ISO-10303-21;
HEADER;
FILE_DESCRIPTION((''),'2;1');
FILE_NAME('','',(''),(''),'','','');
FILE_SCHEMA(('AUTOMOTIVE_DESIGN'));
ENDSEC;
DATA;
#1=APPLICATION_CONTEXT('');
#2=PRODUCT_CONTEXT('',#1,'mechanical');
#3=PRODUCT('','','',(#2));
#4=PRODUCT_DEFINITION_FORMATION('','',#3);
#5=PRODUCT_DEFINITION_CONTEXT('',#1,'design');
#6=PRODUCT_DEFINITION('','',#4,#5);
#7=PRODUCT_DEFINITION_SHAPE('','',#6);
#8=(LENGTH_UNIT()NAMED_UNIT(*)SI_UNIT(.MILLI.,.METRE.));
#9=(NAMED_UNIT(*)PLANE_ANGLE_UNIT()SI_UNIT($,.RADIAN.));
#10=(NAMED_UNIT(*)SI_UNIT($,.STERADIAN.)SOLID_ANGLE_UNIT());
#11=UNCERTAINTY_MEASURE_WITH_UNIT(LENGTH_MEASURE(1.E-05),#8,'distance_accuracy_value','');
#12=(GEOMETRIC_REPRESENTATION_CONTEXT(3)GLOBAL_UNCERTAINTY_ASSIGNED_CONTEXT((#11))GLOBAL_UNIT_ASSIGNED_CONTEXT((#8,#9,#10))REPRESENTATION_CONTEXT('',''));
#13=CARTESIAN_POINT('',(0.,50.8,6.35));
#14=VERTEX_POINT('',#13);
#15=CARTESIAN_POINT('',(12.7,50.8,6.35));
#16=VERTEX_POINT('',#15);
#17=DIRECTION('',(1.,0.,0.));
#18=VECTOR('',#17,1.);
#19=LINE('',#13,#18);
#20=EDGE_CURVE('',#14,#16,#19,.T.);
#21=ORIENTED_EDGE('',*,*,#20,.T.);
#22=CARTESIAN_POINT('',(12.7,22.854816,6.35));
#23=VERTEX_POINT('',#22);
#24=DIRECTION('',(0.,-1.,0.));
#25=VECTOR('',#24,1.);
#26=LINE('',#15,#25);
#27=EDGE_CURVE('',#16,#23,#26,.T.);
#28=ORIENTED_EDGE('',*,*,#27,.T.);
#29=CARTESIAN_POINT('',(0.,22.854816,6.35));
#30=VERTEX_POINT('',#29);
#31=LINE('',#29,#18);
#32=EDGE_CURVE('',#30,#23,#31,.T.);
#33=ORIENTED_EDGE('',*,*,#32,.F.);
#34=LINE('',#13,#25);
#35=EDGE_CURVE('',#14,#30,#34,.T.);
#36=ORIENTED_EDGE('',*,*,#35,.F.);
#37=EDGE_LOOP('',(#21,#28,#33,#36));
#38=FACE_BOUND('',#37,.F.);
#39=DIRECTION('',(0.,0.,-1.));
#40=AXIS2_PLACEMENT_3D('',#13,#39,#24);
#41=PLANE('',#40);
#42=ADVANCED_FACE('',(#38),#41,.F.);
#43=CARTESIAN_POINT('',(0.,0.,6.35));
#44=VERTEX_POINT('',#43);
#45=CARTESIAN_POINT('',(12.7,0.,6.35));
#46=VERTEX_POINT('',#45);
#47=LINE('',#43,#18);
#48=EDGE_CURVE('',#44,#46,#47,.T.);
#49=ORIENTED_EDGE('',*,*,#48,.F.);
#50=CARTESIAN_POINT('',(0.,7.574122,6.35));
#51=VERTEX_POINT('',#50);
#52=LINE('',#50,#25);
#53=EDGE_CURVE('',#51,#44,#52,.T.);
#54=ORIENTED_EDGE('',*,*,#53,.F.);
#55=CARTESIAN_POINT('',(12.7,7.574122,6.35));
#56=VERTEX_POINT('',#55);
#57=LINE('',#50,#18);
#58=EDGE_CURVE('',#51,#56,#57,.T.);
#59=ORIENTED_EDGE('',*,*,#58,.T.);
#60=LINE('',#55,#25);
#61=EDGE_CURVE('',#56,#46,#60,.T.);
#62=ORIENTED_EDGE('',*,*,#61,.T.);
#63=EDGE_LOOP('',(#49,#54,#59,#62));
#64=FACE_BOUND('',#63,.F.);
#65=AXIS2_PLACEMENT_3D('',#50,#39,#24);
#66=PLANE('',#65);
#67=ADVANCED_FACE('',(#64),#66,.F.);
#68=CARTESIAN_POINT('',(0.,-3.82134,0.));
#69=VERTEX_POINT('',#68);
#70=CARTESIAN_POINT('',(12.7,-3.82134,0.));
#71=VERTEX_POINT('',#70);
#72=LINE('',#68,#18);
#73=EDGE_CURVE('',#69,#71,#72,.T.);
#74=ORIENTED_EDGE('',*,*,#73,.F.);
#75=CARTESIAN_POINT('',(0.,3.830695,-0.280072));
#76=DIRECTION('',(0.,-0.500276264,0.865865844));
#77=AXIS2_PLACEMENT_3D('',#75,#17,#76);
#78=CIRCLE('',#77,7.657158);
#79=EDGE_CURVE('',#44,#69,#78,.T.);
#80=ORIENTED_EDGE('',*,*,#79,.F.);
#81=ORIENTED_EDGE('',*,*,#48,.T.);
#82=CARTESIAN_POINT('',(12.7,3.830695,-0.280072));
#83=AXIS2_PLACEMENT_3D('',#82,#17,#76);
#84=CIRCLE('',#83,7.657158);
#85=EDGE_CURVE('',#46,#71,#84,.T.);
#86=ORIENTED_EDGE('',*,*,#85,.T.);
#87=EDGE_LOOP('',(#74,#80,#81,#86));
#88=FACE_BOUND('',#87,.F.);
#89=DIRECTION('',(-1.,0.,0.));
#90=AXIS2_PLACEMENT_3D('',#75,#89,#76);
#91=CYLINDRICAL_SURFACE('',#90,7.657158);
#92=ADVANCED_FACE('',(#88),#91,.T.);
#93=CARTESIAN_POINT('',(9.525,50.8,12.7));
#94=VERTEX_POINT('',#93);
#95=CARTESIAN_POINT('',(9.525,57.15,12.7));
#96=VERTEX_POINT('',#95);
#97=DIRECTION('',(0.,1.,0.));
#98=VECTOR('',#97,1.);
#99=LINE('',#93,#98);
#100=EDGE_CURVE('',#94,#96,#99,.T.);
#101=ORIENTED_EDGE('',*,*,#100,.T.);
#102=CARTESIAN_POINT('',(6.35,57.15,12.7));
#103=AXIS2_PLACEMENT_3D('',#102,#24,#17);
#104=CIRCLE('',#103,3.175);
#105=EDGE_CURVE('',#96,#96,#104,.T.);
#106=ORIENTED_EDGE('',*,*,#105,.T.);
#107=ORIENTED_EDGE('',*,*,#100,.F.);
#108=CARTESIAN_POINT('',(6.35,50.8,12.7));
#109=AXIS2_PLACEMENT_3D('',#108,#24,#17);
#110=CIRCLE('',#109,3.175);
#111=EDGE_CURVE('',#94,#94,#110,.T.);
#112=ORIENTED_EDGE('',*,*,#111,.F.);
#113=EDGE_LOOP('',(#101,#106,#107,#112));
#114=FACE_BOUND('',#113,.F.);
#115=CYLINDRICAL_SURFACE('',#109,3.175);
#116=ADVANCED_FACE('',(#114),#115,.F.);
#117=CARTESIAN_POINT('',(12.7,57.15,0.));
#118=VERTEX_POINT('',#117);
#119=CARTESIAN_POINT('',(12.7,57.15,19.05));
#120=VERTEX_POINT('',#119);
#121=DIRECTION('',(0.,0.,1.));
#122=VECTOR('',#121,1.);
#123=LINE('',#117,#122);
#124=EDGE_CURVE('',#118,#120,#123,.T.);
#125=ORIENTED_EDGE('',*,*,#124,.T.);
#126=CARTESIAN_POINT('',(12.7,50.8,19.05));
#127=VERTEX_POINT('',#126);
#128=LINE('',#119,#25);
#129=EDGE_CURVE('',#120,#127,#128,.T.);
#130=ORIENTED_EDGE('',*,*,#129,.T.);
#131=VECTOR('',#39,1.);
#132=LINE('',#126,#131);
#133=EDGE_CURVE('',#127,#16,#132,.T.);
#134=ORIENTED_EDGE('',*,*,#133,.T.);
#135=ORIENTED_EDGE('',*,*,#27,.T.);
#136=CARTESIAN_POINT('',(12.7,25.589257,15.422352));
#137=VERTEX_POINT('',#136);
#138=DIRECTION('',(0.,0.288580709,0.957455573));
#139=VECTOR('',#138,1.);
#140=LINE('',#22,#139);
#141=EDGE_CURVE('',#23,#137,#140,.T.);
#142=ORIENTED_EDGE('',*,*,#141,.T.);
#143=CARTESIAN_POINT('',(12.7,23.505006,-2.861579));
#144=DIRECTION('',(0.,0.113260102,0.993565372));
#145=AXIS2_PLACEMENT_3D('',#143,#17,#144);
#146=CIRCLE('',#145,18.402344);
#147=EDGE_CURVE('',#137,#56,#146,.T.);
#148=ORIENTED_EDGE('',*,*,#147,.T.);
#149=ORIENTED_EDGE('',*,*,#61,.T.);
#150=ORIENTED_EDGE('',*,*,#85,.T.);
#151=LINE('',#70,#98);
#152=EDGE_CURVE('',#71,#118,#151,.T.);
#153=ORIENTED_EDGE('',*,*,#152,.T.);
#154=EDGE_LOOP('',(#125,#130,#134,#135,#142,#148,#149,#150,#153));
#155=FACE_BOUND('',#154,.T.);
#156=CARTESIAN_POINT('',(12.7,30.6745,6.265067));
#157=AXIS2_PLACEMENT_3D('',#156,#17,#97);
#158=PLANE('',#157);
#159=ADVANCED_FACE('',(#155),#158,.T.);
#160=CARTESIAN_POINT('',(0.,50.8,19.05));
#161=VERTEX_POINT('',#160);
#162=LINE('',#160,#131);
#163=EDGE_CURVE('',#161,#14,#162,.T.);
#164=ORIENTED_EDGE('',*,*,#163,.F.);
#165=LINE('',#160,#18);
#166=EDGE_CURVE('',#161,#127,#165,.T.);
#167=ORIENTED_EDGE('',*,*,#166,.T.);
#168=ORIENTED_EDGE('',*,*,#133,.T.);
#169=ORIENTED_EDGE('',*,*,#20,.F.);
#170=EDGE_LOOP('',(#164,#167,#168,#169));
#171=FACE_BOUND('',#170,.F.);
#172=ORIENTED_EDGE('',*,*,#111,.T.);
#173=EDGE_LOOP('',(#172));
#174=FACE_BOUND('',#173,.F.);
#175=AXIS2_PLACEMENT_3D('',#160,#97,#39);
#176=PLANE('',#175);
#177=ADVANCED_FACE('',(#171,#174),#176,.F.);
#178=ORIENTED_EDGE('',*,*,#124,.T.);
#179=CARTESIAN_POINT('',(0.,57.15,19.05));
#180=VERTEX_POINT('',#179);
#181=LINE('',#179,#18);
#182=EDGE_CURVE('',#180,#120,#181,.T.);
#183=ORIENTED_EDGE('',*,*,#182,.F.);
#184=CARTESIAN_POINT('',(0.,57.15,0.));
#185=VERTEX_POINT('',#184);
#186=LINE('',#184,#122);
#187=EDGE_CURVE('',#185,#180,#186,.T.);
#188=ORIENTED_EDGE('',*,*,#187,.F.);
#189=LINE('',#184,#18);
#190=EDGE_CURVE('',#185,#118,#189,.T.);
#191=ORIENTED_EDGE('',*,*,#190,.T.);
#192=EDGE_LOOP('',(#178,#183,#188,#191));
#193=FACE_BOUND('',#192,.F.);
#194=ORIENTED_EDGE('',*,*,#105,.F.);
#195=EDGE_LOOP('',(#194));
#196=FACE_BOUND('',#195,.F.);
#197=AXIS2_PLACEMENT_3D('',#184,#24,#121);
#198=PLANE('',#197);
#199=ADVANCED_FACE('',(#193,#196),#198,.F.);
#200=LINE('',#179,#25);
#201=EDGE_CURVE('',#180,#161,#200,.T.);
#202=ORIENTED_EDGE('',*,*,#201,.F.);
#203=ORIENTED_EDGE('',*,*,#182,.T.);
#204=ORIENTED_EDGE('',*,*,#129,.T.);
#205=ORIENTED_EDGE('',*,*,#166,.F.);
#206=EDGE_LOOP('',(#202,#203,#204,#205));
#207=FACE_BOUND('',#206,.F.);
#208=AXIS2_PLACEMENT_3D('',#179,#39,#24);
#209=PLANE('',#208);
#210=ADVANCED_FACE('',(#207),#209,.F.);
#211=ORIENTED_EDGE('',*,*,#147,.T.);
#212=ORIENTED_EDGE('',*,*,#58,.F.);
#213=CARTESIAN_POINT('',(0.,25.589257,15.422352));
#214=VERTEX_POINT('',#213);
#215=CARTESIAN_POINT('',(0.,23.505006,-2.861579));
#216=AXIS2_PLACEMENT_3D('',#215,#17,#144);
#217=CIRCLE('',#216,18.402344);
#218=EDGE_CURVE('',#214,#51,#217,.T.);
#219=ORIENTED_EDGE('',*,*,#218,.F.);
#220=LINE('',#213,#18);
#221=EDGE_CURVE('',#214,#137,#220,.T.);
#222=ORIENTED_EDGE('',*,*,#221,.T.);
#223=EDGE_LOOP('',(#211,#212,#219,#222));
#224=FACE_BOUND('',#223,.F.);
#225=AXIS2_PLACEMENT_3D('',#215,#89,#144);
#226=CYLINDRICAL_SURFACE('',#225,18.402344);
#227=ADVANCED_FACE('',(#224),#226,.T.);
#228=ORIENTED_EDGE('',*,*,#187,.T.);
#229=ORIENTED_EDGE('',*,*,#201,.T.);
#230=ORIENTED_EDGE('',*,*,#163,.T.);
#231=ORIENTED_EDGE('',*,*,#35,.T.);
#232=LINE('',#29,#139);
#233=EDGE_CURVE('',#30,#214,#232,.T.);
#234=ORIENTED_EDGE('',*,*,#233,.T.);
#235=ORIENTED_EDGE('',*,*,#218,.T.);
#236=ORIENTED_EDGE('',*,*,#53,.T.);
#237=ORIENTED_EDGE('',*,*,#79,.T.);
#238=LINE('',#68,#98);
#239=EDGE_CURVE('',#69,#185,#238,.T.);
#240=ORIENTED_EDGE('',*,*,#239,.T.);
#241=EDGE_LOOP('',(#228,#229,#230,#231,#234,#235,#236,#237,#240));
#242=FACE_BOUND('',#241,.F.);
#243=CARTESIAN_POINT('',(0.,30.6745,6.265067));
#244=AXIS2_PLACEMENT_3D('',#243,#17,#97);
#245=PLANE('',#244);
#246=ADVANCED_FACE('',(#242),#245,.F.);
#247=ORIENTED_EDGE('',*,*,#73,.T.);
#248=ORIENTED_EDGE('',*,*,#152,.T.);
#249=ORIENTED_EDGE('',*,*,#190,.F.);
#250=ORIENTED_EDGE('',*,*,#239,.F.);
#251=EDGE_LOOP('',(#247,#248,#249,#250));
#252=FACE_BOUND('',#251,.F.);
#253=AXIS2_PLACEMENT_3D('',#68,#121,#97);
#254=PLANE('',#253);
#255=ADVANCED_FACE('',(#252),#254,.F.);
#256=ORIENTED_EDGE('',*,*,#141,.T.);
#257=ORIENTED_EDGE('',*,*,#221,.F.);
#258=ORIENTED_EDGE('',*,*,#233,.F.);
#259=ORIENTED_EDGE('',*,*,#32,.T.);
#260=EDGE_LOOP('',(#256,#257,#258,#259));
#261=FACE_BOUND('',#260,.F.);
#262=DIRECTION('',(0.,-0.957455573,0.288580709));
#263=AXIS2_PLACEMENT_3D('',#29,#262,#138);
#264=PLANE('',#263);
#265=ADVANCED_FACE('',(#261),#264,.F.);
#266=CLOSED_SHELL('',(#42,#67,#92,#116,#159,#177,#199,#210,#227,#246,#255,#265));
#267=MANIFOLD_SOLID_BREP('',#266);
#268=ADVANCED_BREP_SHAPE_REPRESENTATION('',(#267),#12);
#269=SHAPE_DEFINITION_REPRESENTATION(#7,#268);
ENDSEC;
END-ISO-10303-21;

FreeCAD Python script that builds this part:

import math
import FreeCAD as App
import Part
import Sketcher

V = App.Vector
Q = App.Units.Quantity

doc = App.newDocument("Part")
params = doc.addObject("Spreadsheet::Sheet", "Params")
for row, (alias, value) in enumerate([
    ("sketch1_height", "0.5 in"),
    ("sketch1_width", "0.25 in"),
    ("sketch1_height2", "0.75 in"),
    ("pad1_length", "0.5 in"),
    ("sketch2_diameter", "0.25 in"),
    ("pocket1_length", "1 in"),
], start=1):
    params.set(f"A{row}", alias)
    params.set(f"B{row}", "=" + value)
    params.setAlias(f"B{row}", alias)

body = doc.addObject("PartDesign::Body", "Body")

sketch1 = body.newObject("Sketcher::SketchObject", "Sketch")
sketch1.AttachmentSupport = (doc.getObject("YZ_Plane"), [""])
sketch1.MapMode = "FlatFace"
sketch1.addGeometry([
    Part.LineSegment(V(-4, 0, 0), V(57, 0, 0)),
    Part.LineSegment(V(57, 0, 0), V(57, 19, 0)),
    Part.LineSegment(V(57, 19, 0), V(51, 19, 0)),
    Part.LineSegment(V(51, 19, 0), V(51, 6, 0)),
    Part.LineSegment(V(51, 6, 0), V(23, 6, 0)),
    Part.LineSegment(V(23, 6, 0), V(26, 15, 0)),
    Part.ArcOfCircle(Part.Circle(V(24, -3, 0), V(0, 0, 1), 18), math.radians(83), math.radians(150)),
    Part.LineSegment(V(8, 6, 0), V(0, 6, 0)),
    Part.ArcOfCircle(Part.Circle(V(4, 0, 0), V(0, 0, 1), 8), math.radians(120), math.radians(178)),
], False)
sketch1.addConstraint([
    Sketcher.Constraint("Coincident", 0, 2, 1, 1),
    Sketcher.Constraint("Coincident", 1, 2, 2, 1),
    Sketcher.Constraint("Coincident", 2, 2, 3, 1),
    Sketcher.Constraint("Coincident", 3, 2, 4, 1),
    Sketcher.Constraint("Coincident", 4, 2, 5, 1),
    Sketcher.Constraint("Coincident", 5, 2, 6, 1),
    Sketcher.Constraint("Coincident", 6, 2, 7, 1),
    Sketcher.Constraint("Coincident", 7, 2, 8, 1),
    Sketcher.Constraint("Coincident", 8, 2, 0, 1),
    Sketcher.Constraint("Horizontal", 0),
    Sketcher.Constraint("Vertical", 1),
    Sketcher.Constraint("Horizontal", 2),
    Sketcher.Constraint("Vertical", 3),
    Sketcher.Constraint("Horizontal", 4),
    Sketcher.Constraint("Horizontal", 7),
    Sketcher.Constraint("PointOnObject", 0, 2, -1),
    Sketcher.Constraint("PointOnObject", 7, 2, -2),
    Sketcher.Constraint("Horizontal", 4, 2, 6, 2),
    Sketcher.Constraint("DistanceY", 3, 2, 3, 1, Q("0.5 in")),
    Sketcher.Constraint("DistanceX", -1, 1, 2, 2, Q("2 in")),
    Sketcher.Constraint("DistanceX", 2, 2, 2, 1, Q("0.25 in")),
    Sketcher.Constraint("DistanceY", 1, 1, 1, 2, Q("0.75 in")),
    Sketcher.Constraint("Radius", 8, Q("7.657158 mm")),
    Sketcher.Constraint("Radius", 6, Q("18.402344 mm")),
    Sketcher.Constraint("DistanceX", 6, 2, 6, 3, Q("0.6272001 in")),
    Sketcher.Constraint("DistanceX", 0, 1, 0, 2, Q("60.97134 mm")),
    Sketcher.Constraint("Distance", 5, Q("9.475481 mm")),
    Sketcher.Constraint("DistanceX", 4, 2, 4, 1, Q("27.945184 mm")),
    Sketcher.Constraint("DistanceX", 7, 2, 7, 1, Q("7.574122 mm")),
])
sketch1.setExpression("Constraints[18]", "Params.sketch1_height")
sketch1.setExpression("Constraints[20]", "Params.sketch1_width")
sketch1.setExpression("Constraints[21]", "Params.sketch1_height2")
pad1 = body.newObject("PartDesign::Pad", "Pad")
pad1.Profile = sketch1
pad1.setExpression("Length", "Params.pad1_length")

sketch2 = body.newObject("Sketcher::SketchObject", "Sketch001")
sketch2.AttachmentSupport = (doc.getObject("XZ_Plane"), [""])
sketch2.MapMode = "FlatFace"
sketch2.AttachmentOffset = App.Placement(V(0, 0, -2 * 25.4), App.Rotation())
sketch2.addGeometry(Part.Circle(V(6.3, 12.7, 0), V(0, 0, 1), 3.2), False)
sketch2.addConstraint([
    Sketcher.Constraint("Diameter", 0, Q("0.25 in")),
    Sketcher.Constraint("DistanceY", -1, 1, 0, 3, Q("0.5 in")),
    Sketcher.Constraint("DistanceX", -1, 1, 0, 3, Q("0.25 in")),
])
sketch2.setExpression("Constraints[0]", "Params.sketch2_diameter")
pocket1 = body.newObject("PartDesign::Pocket", "Pocket")
pocket1.Profile = sketch2
pocket1.setExpression("Length", "Params.pocket1_length")

doc.recompute()
